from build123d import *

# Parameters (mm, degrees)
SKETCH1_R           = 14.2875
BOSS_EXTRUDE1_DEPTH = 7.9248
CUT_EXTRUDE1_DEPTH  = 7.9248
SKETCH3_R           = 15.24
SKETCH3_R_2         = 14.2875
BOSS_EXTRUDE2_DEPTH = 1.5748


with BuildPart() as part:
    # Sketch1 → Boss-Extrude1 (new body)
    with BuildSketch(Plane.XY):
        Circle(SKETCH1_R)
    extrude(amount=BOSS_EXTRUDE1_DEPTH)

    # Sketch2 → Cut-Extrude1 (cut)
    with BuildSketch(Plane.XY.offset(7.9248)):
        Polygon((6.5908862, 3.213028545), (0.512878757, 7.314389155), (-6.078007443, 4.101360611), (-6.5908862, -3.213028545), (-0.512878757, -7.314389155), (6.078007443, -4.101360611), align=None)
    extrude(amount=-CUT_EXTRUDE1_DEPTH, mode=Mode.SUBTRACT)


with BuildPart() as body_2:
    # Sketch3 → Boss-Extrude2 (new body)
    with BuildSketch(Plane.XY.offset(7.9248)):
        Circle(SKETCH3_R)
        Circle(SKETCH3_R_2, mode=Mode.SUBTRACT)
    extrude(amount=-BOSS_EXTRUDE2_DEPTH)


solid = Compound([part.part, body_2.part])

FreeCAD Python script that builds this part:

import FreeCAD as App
import Part
import Sketcher
Q = App.Units.Quantity

doc = App.newDocument("Part")
params = doc.addObject("Spreadsheet::Sheet", "Params")
for row, (alias, value) in enumerate([
    ("sketch1_diameter", "1.125 in"),
    ("pad1_length", "0.312 in"),
    ("pocket1_length", "0.312 in"),
    ("sketch3_diameter", "1.2 in"),
    ("sketch3_diameter2", "1.125 in"),
    ("pad2_length", "0.062 in"),
], start=1):
    params.set(f"A{row}", alias)
    params.set(f"B{row}", "=" + value)
    params.setAlias(f"B{row}", alias)

body = doc.addObject("PartDesign::Body", "Body")

# Sketch on XY plane
sketch1 = body.newObject("Sketcher::SketchObject", "Sketch")
sketch1.AttachmentSupport = (doc.getObject("XY_Plane"), [""])
sketch1.MapMode = "FlatFace"
sketch1.addGeometry(Part.Circle(App.Vector(0, 0, 0), App.Vector(0, 0, 1), 14), False)
sketch1.addConstraint(Sketcher.Constraint("Coincident", 0, 3, -1, 1))
sketch1.addConstraint(Sketcher.Constraint("Diameter", 0, Q("1.125 in")))
sketch1.setExpression("Constraints[1]", "Params.sketch1_diameter")
pad1 = body.newObject("PartDesign::Pad", "Pad")
pad1.Profile = sketch1
pad1.setExpression("Length", "Params.pad1_length")

# Sketch on XY plane
sketch2 = body.newObject("Sketcher::SketchObject", "Sketch001")
sketch2.AttachmentSupport = (doc.getObject("XY_Plane"), [""])
sketch2.MapMode = "FlatFace"
sketch2.AttachmentOffset = App.Placement(App.Vector(0, 0, 0.312 * 25.4), App.Rotation())
sketch2.addGeometry(Part.LineSegment(App.Vector(7, 3, 0), App.Vector(1, 7, 0)), False)
sketch2.addGeometry(Part.LineSegment(App.Vector(1, 7, 0), App.Vector(-6, 4, 0)), False)
sketch2.addGeometry(Part.LineSegment(App.Vector(-6, 4, 0), App.Vector(-7, -3, 0)), False)
sketch2.addGeometry(Part.LineSegment(App.Vector(-7, -3, 0), App.Vector(-1, -7, 0)), False)
sketch2.addGeometry(Part.LineSegment(App.Vector(-1, -7, 0), App.Vector(6, -4, 0)), False)
sketch2.addGeometry(Part.LineSegment(App.Vector(6, -4, 0), App.Vector(7, 3, 0)), False)
sketch2.addConstraint(Sketcher.Constraint("Coincident", 0, 2, 1, 1))
sketch2.addConstraint(Sketcher.Constraint("Coincident", 1, 2, 2, 1))
sketch2.addConstraint(Sketcher.Constraint("Coincident", 2, 2, 3, 1))
sketch2.addConstraint(Sketcher.Constraint("Coincident", 3, 2, 4, 1))
sketch2.addConstraint(Sketcher.Constraint("Coincident", 4, 2, 5, 1))
sketch2.addConstraint(Sketcher.Constraint("Coincident", 5, 2, 0, 1))
sketch2.addConstraint(Sketcher.Constraint("Symmetric", 0, 2, 3, 2, -1, 1))
sketch2.addConstraint(Sketcher.Constraint("Symmetric", 1, 2, 4, 2, -1, 1))
sketch2.addConstraint(Sketcher.Constraint("Symmetric", 2, 2, 5, 2, -1, 1))
sketch2.addConstraint(Sketcher.Constraint("Equal", 0, 1))
sketch2.addConstraint(Sketcher.Constraint("Equal", 1, 2))
sketch2.addConstraint(Sketcher.Constraint("Distance", 0, Q("7.332348 mm")))
sketch2.addConstraint(Sketcher.Constraint("DistanceX", -1, 1, 0, 2, Q("0.512879 mm")))
sketch2.addConstraint(Sketcher.Constraint("DistanceY", -1, 1, 0, 2, Q("7.314389 mm")))
sketch2.addConstraint(Sketcher.Constraint("DistanceY", -1, 1, 1, 2, Q("4.101361 mm")))
pocket1 = body.newObject("PartDesign::Pocket", "Pocket")
pocket1.Profile = sketch2
pocket1.setExpression("Length", "Params.pocket1_length")
body2 = doc.addObject("PartDesign::Body", "Body001")

# Sketch on XY plane
sketch3 = body2.newObject("Sketcher::SketchObject", "Sketch002")
sketch3.AttachmentSupport = (doc.getObject("XY_Plane001"), [""])
sketch3.MapMode = "FlatFace"
sketch3.AttachmentOffset = App.Placement(App.Vector(0, 0, 0.312 * 25.4), App.Rotation())
sketch3.addGeometry(Part.Circle(App.Vector(0, 0, 0), App.Vector(0, 0, 1), 15), False)
sketch3.addGeometry(Part.Circle(App.Vector(0, 0, 0), App.Vector(0, 0, 1), 14), False)
sketch3.addConstraint(Sketcher.Constraint("Coincident", 0, 3, -1, 1))
sketch3.addConstraint(Sketcher.Constraint("Coincident", 1, 3, -1, 1))
sketch3.addConstraint(Sketcher.Constraint("Diameter", 0, Q("1.2 in")))
sketch3.addConstraint(Sketcher.Constraint("Diameter", 1, Q("1.125 in")))
sketch3.setExpression("Constraints[2]", "Params.sketch3_diameter")
sketch3.setExpression("Constraints[3]", "Params.sketch3_diameter2")
pad2 = body2.newObject("PartDesign::Pad", "Pad001")
pad2.Profile = sketch3
pad2.setExpression("Length", "Params.pad2_length")
pad2.Reversed = True

doc.recompute()
